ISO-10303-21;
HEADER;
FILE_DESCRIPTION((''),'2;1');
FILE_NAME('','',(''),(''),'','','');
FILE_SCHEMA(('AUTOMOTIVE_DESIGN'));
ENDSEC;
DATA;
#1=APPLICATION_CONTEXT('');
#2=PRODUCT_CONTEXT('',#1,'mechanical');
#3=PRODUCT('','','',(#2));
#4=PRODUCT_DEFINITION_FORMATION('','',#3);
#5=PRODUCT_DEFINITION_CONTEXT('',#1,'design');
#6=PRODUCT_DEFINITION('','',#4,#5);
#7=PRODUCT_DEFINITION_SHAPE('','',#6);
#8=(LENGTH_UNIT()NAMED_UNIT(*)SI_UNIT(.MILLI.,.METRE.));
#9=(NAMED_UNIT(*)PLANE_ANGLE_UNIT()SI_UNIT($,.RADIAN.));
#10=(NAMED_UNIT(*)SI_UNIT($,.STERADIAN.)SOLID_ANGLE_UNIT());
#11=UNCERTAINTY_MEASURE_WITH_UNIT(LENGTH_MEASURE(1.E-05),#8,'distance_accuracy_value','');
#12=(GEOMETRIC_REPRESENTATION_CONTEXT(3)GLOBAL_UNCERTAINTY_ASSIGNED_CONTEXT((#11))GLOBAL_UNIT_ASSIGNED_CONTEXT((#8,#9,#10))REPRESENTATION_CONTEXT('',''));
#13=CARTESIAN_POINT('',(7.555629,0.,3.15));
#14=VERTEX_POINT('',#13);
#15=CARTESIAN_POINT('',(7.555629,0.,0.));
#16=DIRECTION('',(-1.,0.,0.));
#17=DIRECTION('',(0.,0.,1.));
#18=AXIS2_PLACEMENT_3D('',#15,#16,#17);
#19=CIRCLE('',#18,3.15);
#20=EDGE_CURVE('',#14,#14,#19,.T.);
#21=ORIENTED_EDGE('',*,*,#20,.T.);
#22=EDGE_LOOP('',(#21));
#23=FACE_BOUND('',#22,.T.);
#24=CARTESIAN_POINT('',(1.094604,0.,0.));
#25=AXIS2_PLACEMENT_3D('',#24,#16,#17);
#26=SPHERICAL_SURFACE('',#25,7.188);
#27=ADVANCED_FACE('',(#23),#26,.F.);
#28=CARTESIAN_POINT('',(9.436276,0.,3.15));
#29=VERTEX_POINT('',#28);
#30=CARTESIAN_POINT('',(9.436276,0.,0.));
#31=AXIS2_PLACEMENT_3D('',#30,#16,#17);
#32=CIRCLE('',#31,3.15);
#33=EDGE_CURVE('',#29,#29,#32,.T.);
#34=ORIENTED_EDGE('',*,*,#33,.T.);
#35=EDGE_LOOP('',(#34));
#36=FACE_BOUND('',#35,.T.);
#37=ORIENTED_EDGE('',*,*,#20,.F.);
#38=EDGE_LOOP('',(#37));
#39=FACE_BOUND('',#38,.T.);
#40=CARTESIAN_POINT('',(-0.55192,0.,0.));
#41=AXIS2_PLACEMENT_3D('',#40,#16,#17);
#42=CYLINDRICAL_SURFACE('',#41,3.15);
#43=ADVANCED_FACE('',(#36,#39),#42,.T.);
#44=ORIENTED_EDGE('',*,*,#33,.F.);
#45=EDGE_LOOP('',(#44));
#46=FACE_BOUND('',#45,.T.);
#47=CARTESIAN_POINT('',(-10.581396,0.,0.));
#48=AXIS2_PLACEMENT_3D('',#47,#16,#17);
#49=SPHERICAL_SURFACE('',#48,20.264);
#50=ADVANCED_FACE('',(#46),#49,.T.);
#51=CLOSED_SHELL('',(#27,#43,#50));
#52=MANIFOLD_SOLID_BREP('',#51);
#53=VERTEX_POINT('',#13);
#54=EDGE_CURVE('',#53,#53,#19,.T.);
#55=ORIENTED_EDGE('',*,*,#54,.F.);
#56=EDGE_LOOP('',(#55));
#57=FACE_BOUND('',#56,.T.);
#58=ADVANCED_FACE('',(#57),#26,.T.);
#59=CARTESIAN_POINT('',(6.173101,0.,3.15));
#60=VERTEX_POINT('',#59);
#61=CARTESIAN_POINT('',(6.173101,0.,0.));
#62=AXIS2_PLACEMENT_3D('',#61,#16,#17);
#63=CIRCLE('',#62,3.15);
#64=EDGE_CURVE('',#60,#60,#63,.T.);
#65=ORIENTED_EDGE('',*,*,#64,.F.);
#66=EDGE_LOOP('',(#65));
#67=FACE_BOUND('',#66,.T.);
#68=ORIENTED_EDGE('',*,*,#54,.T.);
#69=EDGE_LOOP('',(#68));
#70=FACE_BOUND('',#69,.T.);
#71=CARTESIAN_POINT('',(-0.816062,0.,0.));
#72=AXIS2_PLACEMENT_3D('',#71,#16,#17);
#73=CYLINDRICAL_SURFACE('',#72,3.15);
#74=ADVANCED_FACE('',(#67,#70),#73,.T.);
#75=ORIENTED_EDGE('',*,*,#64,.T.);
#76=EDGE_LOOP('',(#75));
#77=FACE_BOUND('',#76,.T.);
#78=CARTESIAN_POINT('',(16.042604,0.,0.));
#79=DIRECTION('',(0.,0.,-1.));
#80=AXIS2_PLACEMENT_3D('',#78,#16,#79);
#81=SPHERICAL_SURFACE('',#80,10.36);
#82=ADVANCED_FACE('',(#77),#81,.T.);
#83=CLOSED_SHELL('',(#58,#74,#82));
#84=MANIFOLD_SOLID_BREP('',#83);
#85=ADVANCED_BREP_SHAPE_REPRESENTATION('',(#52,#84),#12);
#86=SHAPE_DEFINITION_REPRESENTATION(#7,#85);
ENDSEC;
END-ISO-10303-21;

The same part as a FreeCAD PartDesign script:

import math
import FreeCAD as App
import Part
import Sketcher
from FreeCAD import Vector

doc = App.newDocument("Part")
body = doc.addObject("PartDesign::Body", "Body")

# Sketch on XZ plane
sketch1 = body.newObject("Sketcher::SketchObject", "Sketch")
sketch1.AttachmentSupport = (doc.getObject("XZ_Plane"), [""])
sketch1.MapMode = "FlatFace"
sketch1.addGeometry([
    Part.ArcOfCircle(Part.Circle(Vector(16, 0, 0), Vector(0, 0, 1), 10.4), math.radians(-180), math.radians(-162.3)),
    Part.LineSegment(Vector(5.7, 0, 0), Vector(8.3, 0, 0)),
    Part.ArcOfCircle(Part.Circle(Vector(1.1, 0, 0), Vector(0, 0, 1), 7.2), math.radians(-26), math.radians(0)),
    Part.LineSegment(Vector(7.6, -3.1, 0), Vector(6.2, -3.1, 0)),
], False)
sketch1.addConstraint([
    Sketcher.Constraint("Coincident", 0, 1, 1, 1),
    Sketcher.Constraint("Coincident", 1, 2, 2, 2),
    Sketcher.Constraint("Coincident", 2, 1, 3, 1),
    Sketcher.Constraint("Coincident", 3, 2, 0, 2),
    Sketcher.Constraint("Horizontal", 1),
    Sketcher.Constraint("Horizontal", 3),
    Sketcher.Constraint("PointOnObject", 0, 3, -1),
    Sketcher.Constraint("PointOnObject", 2, 3, -1),
    Sketcher.Constraint("PointOnObject", 0, 1, -1),
    Sketcher.Constraint("Radius", 0, 10.36),
    Sketcher.Constraint("DistanceX", 1, 1, 1, 2, 2.6),
    Sketcher.Constraint("Radius", 2, 7.188),
    Sketcher.Constraint("DistanceY", 2, 1, -1, 1, 3.15),
    Sketcher.Constraint("DistanceX", -1, 1, 3, 2, 6.173101),
])
revolution = body.newObject("PartDesign::Revolution", "Revolution")
revolution.Profile = sketch1
revolution.ReferenceAxis = (sketch1, ["H_Axis"])
revolution.Angle = 360
body2 = doc.addObject("PartDesign::Body", "Body001")

# Sketch on XZ plane
sketch2 = body2.newObject("Sketcher::SketchObject", "Sketch001")
sketch2.AttachmentSupport = (doc.getObject("XZ_Plane001"), [""])
sketch2.MapMode = "FlatFace"
sketch2.addGeometry([
    Part.LineSegment(Vector(9.4, -3.1, 0), Vector(7.6, -3.1, 0)),
    Part.ArcOfCircle(Part.Circle(Vector(1.1, 0, 0), Vector(0, 0, 1), 7.2), math.radians(-26), math.radians(0)),
    Part.LineSegment(Vector(8.3, 0, 0), Vector(9.7, 0, 0)),
    Part.ArcOfCircle(Part.Circle(Vector(-10.6, 0, 0), Vector(0, 0, 1), 20.3), math.radians(-8.94), math.radians(0)),
], False)
sketch2.addConstraint([
    Sketcher.Constraint("Coincident", 0, 2, 1, 1),
    Sketcher.Constraint("Coincident", 1, 2, 2, 1),
    Sketcher.Constraint("Coincident", 2, 2, 3, 2),
    Sketcher.Constraint("Coincident", 3, 1, 0, 1),
    Sketcher.Constraint("Horizontal", 0),
    Sketcher.Constraint("Horizontal", 2),
    Sketcher.Constraint("PointOnObject", 1, 3, -1),
    Sketcher.Constraint("PointOnObject", 3, 3, -1),
    Sketcher.Constraint("PointOnObject", 1, 2, -1),
    Sketcher.Constraint("DistanceX", 2, 1, 2, 2, 1.4),
    Sketcher.Constraint("Radius", 1, 7.188),
    Sketcher.Constraint("Radius", 3, 20.264),
    Sketcher.Constraint("DistanceY", 0, 2, -1, 1, 3.15),
    Sketcher.Constraint("DistanceX", -1, 1, 0, 2, 7.555629),
])
revolution2 = body2.newObject("PartDesign::Revolution", "Revolution001")
revolution2.Profile = sketch2
revolution2.ReferenceAxis = (sketch2, ["H_Axis"])
revolution2.Angle = 360

doc.recompute()
